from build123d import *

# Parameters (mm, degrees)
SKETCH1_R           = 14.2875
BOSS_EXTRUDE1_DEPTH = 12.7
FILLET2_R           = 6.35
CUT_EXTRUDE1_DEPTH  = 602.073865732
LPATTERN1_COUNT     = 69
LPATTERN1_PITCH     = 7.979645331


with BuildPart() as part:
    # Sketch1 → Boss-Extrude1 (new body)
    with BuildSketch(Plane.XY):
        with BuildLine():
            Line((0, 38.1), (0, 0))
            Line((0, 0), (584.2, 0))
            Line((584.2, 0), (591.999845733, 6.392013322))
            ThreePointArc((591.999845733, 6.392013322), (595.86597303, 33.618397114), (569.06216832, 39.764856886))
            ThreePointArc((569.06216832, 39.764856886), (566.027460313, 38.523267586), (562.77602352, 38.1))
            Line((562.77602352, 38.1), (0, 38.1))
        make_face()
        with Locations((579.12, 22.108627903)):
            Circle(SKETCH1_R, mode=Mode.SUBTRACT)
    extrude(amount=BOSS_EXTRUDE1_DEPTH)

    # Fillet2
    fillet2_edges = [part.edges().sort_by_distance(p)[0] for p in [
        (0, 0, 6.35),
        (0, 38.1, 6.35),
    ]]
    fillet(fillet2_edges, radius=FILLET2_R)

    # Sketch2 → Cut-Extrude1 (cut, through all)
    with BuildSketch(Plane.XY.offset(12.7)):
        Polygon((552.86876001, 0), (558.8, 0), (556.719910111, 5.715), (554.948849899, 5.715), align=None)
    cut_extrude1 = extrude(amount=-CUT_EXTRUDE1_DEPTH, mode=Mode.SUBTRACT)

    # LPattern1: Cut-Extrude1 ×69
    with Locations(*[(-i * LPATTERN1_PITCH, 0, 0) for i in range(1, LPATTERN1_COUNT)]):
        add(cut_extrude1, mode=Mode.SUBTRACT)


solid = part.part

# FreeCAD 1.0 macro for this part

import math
import FreeCAD as App
import Part
import Sketcher

V = App.Vector
Q = App.Units.Quantity


def edges_at(feature, points):
    """Names of the edges that pass closest to the given points."""
    edges = feature.Shape.Edges
    near = lambda p: min(range(len(edges)), key=lambda i: edges[i].distToShape(Part.Vertex(*p))[0])
    return sorted({f"Edge{near(p) + 1}" for p in points})


def add_polygon(sketch, points):
    """Adds a closed chain of lines whose ends are joined by coincident constraints."""
    first, n = sketch.GeometryCount, len(points)
    for a, b in zip(points, points[1:] + points[:1]):
        sketch.addGeometry(Part.LineSegment(App.Vector(*a, 0), App.Vector(*b, 0)), False)
    for i in range(n):
        sketch.addConstraint(Sketcher.Constraint("Coincident", first + i, 2, first + (i + 1) % n, 1))

doc = App.newDocument("Part")
body = doc.addObject("PartDesign::Body", "Body")

sketch1 = doc.addObject("Sketcher::SketchObject", "Sketch")
body.addObject(sketch1)
sketch1.AttachmentSupport = (doc.XY_Plane, [""])
sketch1.MapMode = "FlatFace"
sketch1.addGeometry([
    Part.LineSegment(V(0, 38.1, 0), V(0, 0, 0)),
    Part.LineSegment(V(0, 0, 0), V(584.2, 0, 0)),
    Part.LineSegment(V(584.2, 0, 0), V(591.999846, 6.392013, 0)),
    Part.ArcOfCircle(Part.Circle(V(579.12, 22.108628, 0), V(0, 0, 1), 20.32), math.radians(-50.665207), math.radians(119.667906)),
    Part.ArcOfCircle(Part.Circle(V(562.776024, 50.8, 0), V(0, 0, 1), 12.7), math.radians(-90), math.radians(-60.332094)),
    Part.LineSegment(V(562.776024, 38.1, 0), V(0, 38.1, 0)),
    Part.Circle(V(579.12, 22.108628, 0), V(0, 0, 1), 14.2875),
], False)
sketch1.addConstraint([
    Sketcher.Constraint("Coincident", 0, 2, 1, 1),
    Sketcher.Constraint("Coincident", 1, 2, 2, 1),
    Sketcher.Constraint("Tangent", 2, 2, 3, 1),
    Sketcher.Constraint("Tangent", 3, 2, 4, 2),
    Sketcher.Constraint("Tangent", 4, 1, 5, 1),
    Sketcher.Constraint("Coincident", 5, 2, 0, 1),
    Sketcher.Constraint("Vertical", 0),
    Sketcher.Constraint("Horizontal", 1),
    Sketcher.Constraint("Horizontal", 5),
    Sketcher.Constraint("Coincident", 0, 2, -1, 1),
    Sketcher.Constraint("Coincident", 6, 3, 3, 3),
    Sketcher.Constraint("Radius", 3, Q("0.8 in")),
    Sketcher.Constraint("Radius", 4, Q("0.5 in")),
    Sketcher.Constraint("DistanceX", 1, 1, 1, 2, Q("23 in")),
    Sketcher.Constraint("Diameter", 6, Q("1.125 in")),
    Sketcher.Constraint("DistanceY", 0, 2, 0, 1, Q("1.5 in")),
    Sketcher.Constraint("DistanceX", -1, 1, 3, 3, Q("22.8 in")),
    Sketcher.Constraint("DistanceX", 5, 2, 5, 1, 562.776024),
])
pad1 = doc.addObject("PartDesign::Pad", "Pad")
body.addObject(pad1)
pad1.Profile = sketch1
pad1.Length = Q("0.5 in")
doc.recompute()

fillet = doc.addObject("PartDesign::Fillet", "Fillet")
body.addObject(fillet)
fillet.Base = (pad1, edges_at(pad1, [(0, 0, 6.35), (0, 38.1, 6.35)]))
fillet.Radius = Q("0.25 in")

sketch2 = doc.addObject("Sketcher::SketchObject", "Sketch001")
body.addObject(sketch2)
sketch2.AttachmentSupport = (doc.XY_Plane, [""])
sketch2.MapMode = "FlatFace"
sketch2.AttachmentOffset = App.Placement(V(0, 0, 0.5 * 25.4), App.Rotation())
add_polygon(sketch2, [(552.86876, 0), (558.8, 0), (556.71991, 5.715), (554.94885, 5.715)])
sketch2.addConstraint([
    Sketcher.Constraint("Horizontal", 0),
    Sketcher.Constraint("Horizontal", 2),
    Sketcher.Constraint("PointOnObject", 0, 2, -1),
    Sketcher.Constraint("Equal", 1, 3),
    Sketcher.Constraint("DistanceX", -1, 1, 0, 2, Q("22 in")),
    Sketcher.Constraint("Angle", 1, Q("110 deg")),
    Sketcher.Constraint("DistanceY", -1, 1, 1, 2, Q("0.225 in")),
    Sketcher.Constraint("DistanceX", 0, 1, 0, 2, 5.93124),
])
pocket1 = doc.addObject("PartDesign::Pocket", "Pocket")
body.addObject(pocket1)
pocket1.Profile = sketch2
pocket1.Type = "ThroughAll"
doc.recompute()

linearpattern = doc.addObject("PartDesign::LinearPattern", "LinearPattern")
body.addObject(linearpattern)
linearpattern.Originals = [pocket1]
linearpattern.Direction = (doc.X_Axis, [""])
linearpattern.Mode = "offset"
linearpattern.Offset = 7.979645
linearpattern.Occurrences = 69
linearpattern.Reversed = True
body.Tip = linearpattern

doc.recompute()
